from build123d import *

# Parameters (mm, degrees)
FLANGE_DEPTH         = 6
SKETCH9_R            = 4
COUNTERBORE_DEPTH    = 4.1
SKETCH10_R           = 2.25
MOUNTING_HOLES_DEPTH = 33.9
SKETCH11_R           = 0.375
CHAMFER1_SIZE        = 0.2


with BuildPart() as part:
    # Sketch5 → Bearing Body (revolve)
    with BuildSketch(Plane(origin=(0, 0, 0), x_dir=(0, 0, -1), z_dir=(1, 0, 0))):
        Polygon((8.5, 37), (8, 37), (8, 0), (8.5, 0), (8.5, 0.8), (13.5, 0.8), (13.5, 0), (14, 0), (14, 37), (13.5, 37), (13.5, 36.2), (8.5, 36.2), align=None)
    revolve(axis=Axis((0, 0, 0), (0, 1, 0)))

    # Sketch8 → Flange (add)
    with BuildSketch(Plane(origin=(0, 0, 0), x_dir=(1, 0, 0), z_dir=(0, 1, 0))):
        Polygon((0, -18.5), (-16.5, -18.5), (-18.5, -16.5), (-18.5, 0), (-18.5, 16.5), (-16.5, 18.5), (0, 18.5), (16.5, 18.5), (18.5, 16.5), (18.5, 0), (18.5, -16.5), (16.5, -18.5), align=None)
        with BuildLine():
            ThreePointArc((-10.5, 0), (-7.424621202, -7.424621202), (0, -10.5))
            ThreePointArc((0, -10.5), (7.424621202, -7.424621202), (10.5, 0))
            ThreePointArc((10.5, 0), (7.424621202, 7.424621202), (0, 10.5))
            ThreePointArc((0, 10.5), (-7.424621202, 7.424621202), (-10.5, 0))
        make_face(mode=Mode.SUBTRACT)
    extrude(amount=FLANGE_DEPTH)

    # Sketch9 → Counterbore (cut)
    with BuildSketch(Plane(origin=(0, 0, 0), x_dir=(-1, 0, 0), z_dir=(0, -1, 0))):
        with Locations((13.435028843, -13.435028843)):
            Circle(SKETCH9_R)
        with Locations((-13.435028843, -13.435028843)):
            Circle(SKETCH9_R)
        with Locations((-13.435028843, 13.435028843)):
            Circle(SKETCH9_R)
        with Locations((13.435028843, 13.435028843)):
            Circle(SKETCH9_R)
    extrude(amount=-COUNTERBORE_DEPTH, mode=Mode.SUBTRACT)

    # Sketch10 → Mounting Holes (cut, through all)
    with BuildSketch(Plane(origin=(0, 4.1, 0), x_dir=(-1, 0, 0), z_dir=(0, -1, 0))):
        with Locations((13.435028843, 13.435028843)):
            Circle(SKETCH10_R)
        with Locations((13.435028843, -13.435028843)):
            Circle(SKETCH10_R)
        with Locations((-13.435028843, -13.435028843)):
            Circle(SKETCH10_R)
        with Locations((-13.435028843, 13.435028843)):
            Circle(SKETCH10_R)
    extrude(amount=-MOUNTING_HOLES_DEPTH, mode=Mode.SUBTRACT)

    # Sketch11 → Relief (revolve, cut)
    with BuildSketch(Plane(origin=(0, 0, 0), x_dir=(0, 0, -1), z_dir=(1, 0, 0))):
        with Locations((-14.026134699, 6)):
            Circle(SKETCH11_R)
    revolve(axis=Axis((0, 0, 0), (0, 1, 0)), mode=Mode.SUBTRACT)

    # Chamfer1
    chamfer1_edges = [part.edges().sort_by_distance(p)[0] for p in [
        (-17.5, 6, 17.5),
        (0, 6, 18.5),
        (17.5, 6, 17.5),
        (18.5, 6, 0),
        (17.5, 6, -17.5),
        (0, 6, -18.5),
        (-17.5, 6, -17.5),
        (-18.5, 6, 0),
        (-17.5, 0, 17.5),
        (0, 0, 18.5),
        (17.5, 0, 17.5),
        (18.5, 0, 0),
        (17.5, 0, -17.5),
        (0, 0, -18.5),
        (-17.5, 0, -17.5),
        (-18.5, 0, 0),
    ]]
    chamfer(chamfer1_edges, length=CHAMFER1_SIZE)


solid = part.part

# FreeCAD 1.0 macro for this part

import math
import FreeCAD as App
import Part
import Sketcher

V = App.Vector


def edges_at(feature, points):
    """Names of the edges that pass closest to the given points."""
    edges = feature.Shape.Edges
    near = lambda p: min(range(len(edges)), key=lambda i: edges[i].distToShape(Part.Vertex(*p))[0])
    return sorted({f"Edge{near(p) + 1}" for p in points})


def add_polygon(sketch, points):
    """Adds a closed chain of lines whose ends are joined by coincident constraints."""
    first, n = sketch.GeometryCount, len(points)
    for a, b in zip(points, points[1:] + points[:1]):
        sketch.addGeometry(Part.LineSegment(App.Vector(*a, 0), App.Vector(*b, 0)), False)
    for i in range(n):
        sketch.addConstraint(Sketcher.Constraint("Coincident", first + i, 2, first + (i + 1) % n, 1))

doc = App.newDocument("Part")
params = doc.addObject("Spreadsheet::Sheet", "Params")
for row, (alias, value) in enumerate([
    ("sketch1_width", "37 mm"),
    ("sketch1_height", "5 mm"),
    ("sketch1_width2", "0.8 mm"),
    ("sketch1_height2", "0.5 mm"),
    ("revolution_angle", "360 deg"),
    ("sketch2_radius", "10.5 mm"),
    ("sketch2_width", "33 mm"),
    ("pad1_length", "6 mm"),
    ("sketch3_diameter", "8 mm"),
    ("pocket1_length", "4.1 mm"),
    ("sketch4_diameter", "4.5 mm"),
    ("sketch5_diameter", "0.75 mm"),
    ("groove_angle", "360 deg"),
    ("chamfer_size", "0.2 mm"),
], start=1):
    params.set(f"A{row}", alias)
    params.set(f"B{row}", "=" + value)
    params.setAlias(f"B{row}", alias)

body = doc.addObject("PartDesign::Body", "Body")

# Sketch on YZ plane
sketch1 = doc.addObject("Sketcher::SketchObject", "Sketch")
body.addObject(sketch1)
sketch1.AttachmentSupport = (doc.YZ_Plane, [""])
sketch1.MapMode = "FlatFace"
add_polygon(sketch1, [(37, -8.5), (37, -8), (0, -8), (0, -8.5), (0.8, -8.5), (0.8, -13.5), (0, -13.5), (0, -14), (37, -14), (37, -13.5), (36.2, -13.5), (36.2, -8.5)])  # lines 0-11
sketch1.addConstraint(Sketcher.Constraint("Vertical", 0))
sketch1.addConstraint(Sketcher.Constraint("Horizontal", 1))
sketch1.addConstraint(Sketcher.Constraint("Vertical", 2))
sketch1.addConstraint(Sketcher.Constraint("Horizontal", 3))
sketch1.addConstraint(Sketcher.Constraint("Vertical", 4))
sketch1.addConstraint(Sketcher.Constraint("Horizontal", 5))
sketch1.addConstraint(Sketcher.Constraint("Vertical", 6))
sketch1.addConstraint(Sketcher.Constraint("Horizontal", 7))
sketch1.addConstraint(Sketcher.Constraint("Vertical", 8))
sketch1.addConstraint(Sketcher.Constraint("Horizontal", 9))
sketch1.addConstraint(Sketcher.Constraint("Vertical", 10))
sketch1.addConstraint(Sketcher.Constraint("Horizontal", 11))
sketch1.addConstraint(Sketcher.Constraint("PointOnObject", 1, 2, -2))
sketch1.addConstraint(Sketcher.Constraint("PointOnObject", 5, 2, -2))
sketch1.addConstraint(Sketcher.Constraint("Horizontal", 5, 2, 8, 2))
sketch1.addConstraint(Sketcher.Constraint("Horizontal", 3, 2, 10, 2))
sketch1.addConstraint(Sketcher.Constraint("Vertical", 0, 2, 7, 2))
sketch1.addConstraint(Sketcher.Constraint("Equal", 5, 9))
sketch1.addConstraint(Sketcher.Constraint("Equal", 2, 6))
sketch1.addConstraint(Sketcher.Constraint("DistanceX", 1, 2, 1, 1, 37.0))
sketch1.addConstraint(Sketcher.Constraint("DistanceY", 4, 2, 4, 1, 5.0))
sketch1.addConstraint(Sketcher.Constraint("DistanceX", 3, 1, 3, 2, 0.8))
sketch1.addConstraint(Sketcher.Constraint("DistanceY", 0, 1, 0, 2, 0.5))
sketch1.addConstraint(Sketcher.Constraint("DistanceY", 0, 2, -1, 1, 8.0))
sketch1.setExpression("Constraints[31]", "Params.sketch1_width")
sketch1.setExpression("Constraints[32]", "Params.sketch1_height")
sketch1.setExpression("Constraints[33]", "Params.sketch1_width2")
sketch1.setExpression("Constraints[34]", "Params.sketch1_height2")
revolution = doc.addObject("PartDesign::Revolution", "Revolution")
body.addObject(revolution)
revolution.Profile = sketch1
revolution.ReferenceAxis = (sketch1, ["H_Axis"])
revolution.setExpression("Angle", "Params.revolution_angle")

# Sketch on XZ plane
sketch2 = doc.addObject("Sketcher::SketchObject", "Sketch001")
body.addObject(sketch2)
sketch2.AttachmentSupport = (doc.XZ_Plane, [""])
sketch2.MapMode = "FlatFace"
add_polygon(sketch2, [(-16.5, 18.5), (16.5, 18.5), (18.5, 16.5), (18.5, -16.5), (16.5, -18.5), (-16.5, -18.5), (-18.5, -16.5), (-18.5, 16.5)])  # lines 0-7
sketch2.addGeometry(Part.ArcOfCircle(Part.Circle(V(0, 0, 0), V(0, 0, 1), 10.5), math.radians(-180), math.radians(-90)), False)  # 8
sketch2.addGeometry(Part.ArcOfCircle(Part.Circle(V(0, 0, 0), V(0, 0, 1), 10.5), math.radians(-90), math.radians(0)), False)  # 9
sketch2.addGeometry(Part.ArcOfCircle(Part.Circle(V(0, 0, 0), V(0, 0, 1), 10.5), math.radians(0), math.radians(90)), False)  # 10
sketch2.addGeometry(Part.ArcOfCircle(Part.Circle(V(0, 0, 0), V(0, 0, 1), 10.5), math.radians(90), math.radians(180)), False)  # 11
sketch2.addConstraint(Sketcher.Constraint("Tangent", 8, 2, 9, 1))
sketch2.addConstraint(Sketcher.Constraint("Tangent", 9, 2, 10, 1))
sketch2.addConstraint(Sketcher.Constraint("Tangent", 10, 2, 11, 1))
sketch2.addConstraint(Sketcher.Constraint("Tangent", 11, 2, 8, 1))
sketch2.addConstraint(Sketcher.Constraint("Horizontal", 0))
sketch2.addConstraint(Sketcher.Constraint("Vertical", 2))
sketch2.addConstraint(Sketcher.Constraint("Horizontal", 4))
sketch2.addConstraint(Sketcher.Constraint("Vertical", 6))
sketch2.addConstraint(Sketcher.Constraint("Coincident", 8, 3, -1, 1))
sketch2.addConstraint(Sketcher.Constraint("Equal", 8, 9))
sketch2.addConstraint(Sketcher.Constraint("Symmetric", 0, 2, 4, 2, -1, 1))
sketch2.addConstraint(Sketcher.Constraint("Symmetric", 1, 2, 5, 2, -1, 1))
sketch2.addConstraint(Sketcher.Constraint("PointOnObject", 8, 2, -2))
sketch2.addConstraint(Sketcher.Constraint("PointOnObject", 9, 2, -1))
sketch2.addConstraint(Sketcher.Constraint("PointOnObject", 10, 2, -2))
sketch2.addConstraint(Sketcher.Constraint("PointOnObject", 11, 2, -1))
sketch2.addConstraint(Sketcher.Constraint("Perpendicular", 1, 3))
sketch2.addConstraint(Sketcher.Constraint("Perpendicular", 5, 7))
sketch2.addConstraint(Sketcher.Constraint("Horizontal", 2, 2, 5, 2))
sketch2.addConstraint(Sketcher.Constraint("Horizontal", 1, 2, 6, 2))
sketch2.addConstraint(Sketcher.Constraint("Vertical", 0, 2, 3, 2))
sketch2.addConstraint(Sketcher.Constraint("Equal", 4, 2))
sketch2.addConstraint(Sketcher.Constraint("Radius", 8, 10.5))
sketch2.addConstraint(Sketcher.Constraint("DistanceX", 0, 1, 0, 2, 33.0))
sketch2.addConstraint(Sketcher.Constraint("DistanceX", 0, 2, 1, 2, 2.0))
sketch2.setExpression("Constraints[30]", "Params.sketch2_radius")
sketch2.setExpression("Constraints[31]", "Params.sketch2_width")
pad1 = doc.addObject("PartDesign::Pad", "Pad")
body.addObject(pad1)
pad1.Profile = sketch2
pad1.setExpression("Length", "Params.pad1_length")
pad1.Reversed = True

# Sketch on XZ plane
sketch3 = doc.addObject("Sketcher::SketchObject", "Sketch002")
body.addObject(sketch3)
sketch3.AttachmentSupport = (doc.XZ_Plane, [""])
sketch3.MapMode = "FlatFace"
sketch3.addGeometry(Part.Circle(V(-13.435029, 13.435029, 0), V(0, 0, 1), 4), False)
sketch3.addGeometry(Part.Circle(V(13.435029, 13.435029, 0), V(0, 0, 1), 4), False)
sketch3.addGeometry(Part.Circle(V(13.435029, -13.435029, 0), V(0, 0, 1), 4), False)
sketch3.addGeometry(Part.Circle(V(-13.435029, -13.435029, 0), V(0, 0, 1), 4), False)
sketch3.addConstraint(Sketcher.Constraint("Equal", 0, 1))
sketch3.addConstraint(Sketcher.Constraint("Equal", 1, 2))
sketch3.addConstraint(Sketcher.Constraint("Equal", 2, 3))
sketch3.addConstraint(Sketcher.Constraint("Symmetric", 0, 3, 2, 3, -1, 1))
sketch3.addConstraint(Sketcher.Constraint("Symmetric", 1, 3, 3, 3, -1, 1))
sketch3.addConstraint(Sketcher.Constraint("Symmetric", 0, 3, 1, 3, -2))
sketch3.addConstraint(Sketcher.Constraint("Diameter", 0, 8.0))
sketch3.addConstraint(Sketcher.Constraint("DistanceX", 0, 3, -1, 1, 13.435029))
sketch3.addConstraint(Sketcher.Constraint("DistanceY", -1, 1, 0, 3, 13.435029))
sketch3.setExpression("Constraints[6]", "Params.sketch3_diameter")
pocket1 = doc.addObject("PartDesign::Pocket", "Pocket")
body.addObject(pocket1)
pocket1.Profile = sketch3
pocket1.setExpression("Length", "Params.pocket1_length")

# Sketch on XZ plane
sketch4 = doc.addObject("Sketcher::SketchObject", "Sketch003")
body.addObject(sketch4)
sketch4.AttachmentSupport = (doc.XZ_Plane, [""])
sketch4.MapMode = "FlatFace"
sketch4.AttachmentOffset = App.Placement(V(0, 0, -4.1), App.Rotation())
sketch4.addGeometry(Part.Circle(V(-13.435029, -13.435029, 0), V(0, 0, 1), 2.25), False)
sketch4.addGeometry(Part.Circle(V(-13.435029, 13.435029, 0), V(0, 0, 1), 2.25), False)
sketch4.addGeometry(Part.Circle(V(13.435029, 13.435029, 0), V(0, 0, 1), 2.25), False)
sketch4.addGeometry(Part.Circle(V(13.435029, -13.435029, 0), V(0, 0, 1), 2.25), False)
sketch4.addConstraint(Sketcher.Constraint("Equal", 0, 1))
sketch4.addConstraint(Sketcher.Constraint("Equal", 1, 2))
sketch4.addConstraint(Sketcher.Constraint("Equal", 2, 3))
sketch4.addConstraint(Sketcher.Constraint("Symmetric", 0, 3, 2, 3, -1, 1))
sketch4.addConstraint(Sketcher.Constraint("Symmetric", 1, 3, 3, 3, -1, 1))
sketch4.addConstraint(Sketcher.Constraint("Symmetric", 1, 3, 2, 3, -2))
sketch4.addConstraint(Sketcher.Constraint("Diameter", 0, 4.5))
sketch4.addConstraint(Sketcher.Constraint("DistanceX", 0, 3, -1, 1, 13.435029))
sketch4.addConstraint(Sketcher.Constraint("DistanceY", 0, 3, -1, 1, 13.435029))
sketch4.setExpression("Constraints[6]", "Params.sketch4_diameter")
pocket2 = doc.addObject("PartDesign::Pocket", "Pocket001")
body.addObject(pocket2)
pocket2.Profile = sketch4
pocket2.Type = "ThroughAll"

# Sketch on YZ plane
sketch5 = doc.addObject("Sketcher::SketchObject", "Sketch004")
body.addObject(sketch5)
sketch5.AttachmentSupport = (doc.YZ_Plane, [""])
sketch5.MapMode = "FlatFace"
sketch5.addGeometry(Part.Circle(V(6, 14.026135, 0), V(0, 0, 1), 0.375), False)
sketch5.addConstraint(Sketcher.Constraint("Diameter", 0, 0.75))
sketch5.addConstraint(Sketcher.Constraint("DistanceX", -1, 1, 0, 3, 6.0))
sketch5.addConstraint(Sketcher.Constraint("DistanceY", -1, 1, 0, 3, 14.026135))
sketch5.setExpression("Constraints[0]", "Params.sketch5_diameter")
groove = doc.addObject("PartDesign::Groove", "Groove")
body.addObject(groove)
groove.Profile = sketch5
groove.ReferenceAxis = (sketch5, ["H_Axis"])
groove.setExpression("Angle", "Params.groove_angle")
doc.recompute()

chamfer = doc.addObject("PartDesign::Chamfer", "Chamfer")
body.addObject(chamfer)
chamfer.Base = (groove, edges_at(groove, [
    (-17.5, 6, 17.5),
    (0, 6, 18.5),
    (17.5, 6, 17.5),
    (18.5, 6, 0),
    (17.5, 6, -17.5),
    (0, 6, -18.5),
    (-17.5, 6, -17.5),
    (-18.5, 6, 0),
    (-17.5, 0, 17.5),
    (0, 0, 18.5),
    (17.5, 0, 17.5),
    (18.5, 0, 0),
    (17.5, 0, -17.5),
    (0, 0, -18.5),
    (-17.5, 0, -17.5),
    (-18.5, 0, 0),
]))
chamfer.setExpression("Size", "Params.chamfer_size")

doc.recompute()
